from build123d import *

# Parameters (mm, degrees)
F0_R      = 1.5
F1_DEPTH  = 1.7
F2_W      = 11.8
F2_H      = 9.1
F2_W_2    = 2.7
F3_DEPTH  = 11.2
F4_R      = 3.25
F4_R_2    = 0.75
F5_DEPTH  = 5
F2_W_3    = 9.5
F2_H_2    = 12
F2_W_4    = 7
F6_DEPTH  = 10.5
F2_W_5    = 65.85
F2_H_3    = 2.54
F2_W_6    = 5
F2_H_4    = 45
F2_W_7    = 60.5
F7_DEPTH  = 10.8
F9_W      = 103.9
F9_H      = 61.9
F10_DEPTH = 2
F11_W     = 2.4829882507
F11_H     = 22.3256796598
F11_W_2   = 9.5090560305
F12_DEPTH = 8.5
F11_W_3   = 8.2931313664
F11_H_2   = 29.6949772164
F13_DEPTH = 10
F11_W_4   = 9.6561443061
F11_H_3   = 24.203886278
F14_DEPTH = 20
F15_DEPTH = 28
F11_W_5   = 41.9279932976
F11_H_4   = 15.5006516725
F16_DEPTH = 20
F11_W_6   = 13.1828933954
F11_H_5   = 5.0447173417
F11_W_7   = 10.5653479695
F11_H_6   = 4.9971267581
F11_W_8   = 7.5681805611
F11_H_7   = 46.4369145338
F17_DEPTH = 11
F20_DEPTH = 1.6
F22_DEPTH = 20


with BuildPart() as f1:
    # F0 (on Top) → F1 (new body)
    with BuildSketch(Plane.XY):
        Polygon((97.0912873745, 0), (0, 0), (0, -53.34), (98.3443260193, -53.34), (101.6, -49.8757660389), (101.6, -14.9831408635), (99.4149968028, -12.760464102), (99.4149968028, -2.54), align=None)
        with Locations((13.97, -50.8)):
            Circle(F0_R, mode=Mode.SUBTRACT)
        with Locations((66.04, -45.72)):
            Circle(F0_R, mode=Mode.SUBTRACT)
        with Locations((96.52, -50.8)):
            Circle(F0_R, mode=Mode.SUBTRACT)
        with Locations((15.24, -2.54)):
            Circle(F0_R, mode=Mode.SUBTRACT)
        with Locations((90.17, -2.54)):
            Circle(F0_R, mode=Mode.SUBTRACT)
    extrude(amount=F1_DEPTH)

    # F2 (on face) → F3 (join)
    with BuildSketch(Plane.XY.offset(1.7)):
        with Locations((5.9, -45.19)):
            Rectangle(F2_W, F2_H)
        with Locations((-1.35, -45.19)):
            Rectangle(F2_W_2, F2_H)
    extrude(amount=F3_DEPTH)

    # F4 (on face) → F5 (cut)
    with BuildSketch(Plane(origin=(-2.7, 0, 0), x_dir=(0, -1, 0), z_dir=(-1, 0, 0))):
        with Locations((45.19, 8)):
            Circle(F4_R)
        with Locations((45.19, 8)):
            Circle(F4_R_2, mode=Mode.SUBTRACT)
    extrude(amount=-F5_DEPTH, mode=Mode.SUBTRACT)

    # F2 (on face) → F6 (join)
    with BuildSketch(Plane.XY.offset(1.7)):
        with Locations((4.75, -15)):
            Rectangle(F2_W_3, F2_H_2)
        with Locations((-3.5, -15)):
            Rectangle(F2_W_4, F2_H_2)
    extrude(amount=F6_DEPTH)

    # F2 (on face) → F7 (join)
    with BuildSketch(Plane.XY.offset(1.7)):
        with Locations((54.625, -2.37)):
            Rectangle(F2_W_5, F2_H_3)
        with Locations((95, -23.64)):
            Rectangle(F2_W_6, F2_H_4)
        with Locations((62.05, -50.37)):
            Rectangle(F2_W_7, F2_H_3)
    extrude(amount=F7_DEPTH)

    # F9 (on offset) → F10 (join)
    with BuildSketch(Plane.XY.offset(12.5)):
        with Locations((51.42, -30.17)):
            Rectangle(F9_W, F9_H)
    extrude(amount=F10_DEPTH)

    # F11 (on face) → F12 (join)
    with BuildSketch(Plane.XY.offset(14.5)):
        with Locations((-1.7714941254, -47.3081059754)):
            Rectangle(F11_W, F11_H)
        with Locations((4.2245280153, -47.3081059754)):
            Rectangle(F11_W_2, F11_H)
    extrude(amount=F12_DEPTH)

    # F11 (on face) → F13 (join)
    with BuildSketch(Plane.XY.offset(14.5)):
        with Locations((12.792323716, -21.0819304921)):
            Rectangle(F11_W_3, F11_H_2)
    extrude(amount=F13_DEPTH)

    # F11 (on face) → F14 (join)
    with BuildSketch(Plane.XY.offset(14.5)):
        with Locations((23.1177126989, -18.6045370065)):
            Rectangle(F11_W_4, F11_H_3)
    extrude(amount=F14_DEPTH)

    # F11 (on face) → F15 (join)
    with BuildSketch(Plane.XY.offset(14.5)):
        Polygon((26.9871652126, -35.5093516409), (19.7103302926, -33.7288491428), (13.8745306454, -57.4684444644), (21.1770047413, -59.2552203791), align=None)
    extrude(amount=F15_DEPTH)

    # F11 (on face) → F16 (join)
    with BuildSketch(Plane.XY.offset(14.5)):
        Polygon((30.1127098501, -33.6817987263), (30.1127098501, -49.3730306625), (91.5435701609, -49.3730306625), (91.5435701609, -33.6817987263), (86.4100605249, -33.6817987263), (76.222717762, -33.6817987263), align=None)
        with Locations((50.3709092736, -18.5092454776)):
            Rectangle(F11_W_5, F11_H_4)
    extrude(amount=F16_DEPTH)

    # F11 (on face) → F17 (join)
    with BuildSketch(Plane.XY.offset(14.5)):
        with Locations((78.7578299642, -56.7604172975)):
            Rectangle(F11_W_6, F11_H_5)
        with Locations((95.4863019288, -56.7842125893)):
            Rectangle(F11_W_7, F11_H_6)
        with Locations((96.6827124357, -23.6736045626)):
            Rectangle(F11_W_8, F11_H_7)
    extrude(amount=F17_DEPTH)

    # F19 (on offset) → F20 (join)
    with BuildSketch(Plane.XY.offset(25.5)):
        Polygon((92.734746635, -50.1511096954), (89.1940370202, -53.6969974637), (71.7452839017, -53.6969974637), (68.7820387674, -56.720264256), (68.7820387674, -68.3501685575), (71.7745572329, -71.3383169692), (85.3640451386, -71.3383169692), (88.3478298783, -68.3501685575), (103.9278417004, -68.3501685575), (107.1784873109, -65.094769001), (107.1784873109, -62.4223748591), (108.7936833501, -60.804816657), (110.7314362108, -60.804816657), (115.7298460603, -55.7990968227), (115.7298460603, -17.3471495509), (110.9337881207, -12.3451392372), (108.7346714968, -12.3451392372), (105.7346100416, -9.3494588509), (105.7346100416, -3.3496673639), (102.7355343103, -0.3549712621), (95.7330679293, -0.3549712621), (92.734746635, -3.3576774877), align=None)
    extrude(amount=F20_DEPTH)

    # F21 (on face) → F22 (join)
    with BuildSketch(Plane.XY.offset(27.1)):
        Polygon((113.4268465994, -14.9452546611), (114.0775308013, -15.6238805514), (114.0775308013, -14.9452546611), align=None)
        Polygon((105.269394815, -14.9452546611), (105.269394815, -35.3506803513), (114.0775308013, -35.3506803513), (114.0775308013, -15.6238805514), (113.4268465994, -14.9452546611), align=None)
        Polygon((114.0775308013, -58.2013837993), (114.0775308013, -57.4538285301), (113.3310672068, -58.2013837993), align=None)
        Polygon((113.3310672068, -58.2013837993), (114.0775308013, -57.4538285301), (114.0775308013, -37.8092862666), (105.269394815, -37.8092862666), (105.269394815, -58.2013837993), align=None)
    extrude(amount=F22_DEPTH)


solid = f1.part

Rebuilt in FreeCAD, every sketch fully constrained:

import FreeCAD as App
import Part
import Sketcher

V = App.Vector
Q = App.Units.Quantity

doc = App.newDocument("Part")
params = doc.addObject("Spreadsheet::Sheet", "Params")
for row, (alias, value) in enumerate([
    ("sketch1_diameter", "3 mm"),
    ("sketch1_height", "53.34 mm"),
    ("pad1_length", "1.7 mm"),
    ("sketch2_width", "14.5 mm"),
    ("sketch2_height", "9.1 mm"),
    ("pad2_length", "11.2 mm"),
    ("sketch3_diameter", "6.5 mm"),
    ("sketch3_diameter2", "1.5 mm"),
    ("pocket1_length", "5 mm"),
    ("sketch4_height", "12 mm"),
    ("sketch4_width", "16.5 mm"),
    ("pad3_length", "10.5 mm"),
    ("sketch5_width", "5 mm"),
    ("sketch5_height", "45 mm"),
    ("sketch5_width2", "60.5 mm"),
    ("sketch5_width3", "65.85 mm"),
    ("sketch5_height2", "2.54 mm"),
    ("pad4_length", "10.8 mm"),
    ("sketch6_width", "103.9 mm"),
    ("sketch6_height", "61.9 mm"),
    ("pad5_length", "2 mm"),
    ("pad6_length", "8.5 mm"),
    ("pad7_length", "10 mm"),
    ("pad8_length", "20 mm"),
    ("pad9_length", "28 mm"),
    ("pad10_length", "20 mm"),
    ("pad11_length", "11 mm"),
    ("pad12_length", "1.6 mm"),
    ("pad13_length", "20 mm"),
], start=1):
    params.set(f"A{row}", alias)
    params.set(f"B{row}", "=" + value)
    params.setAlias(f"B{row}", alias)

body = doc.addObject("PartDesign::Body", "Body")

# Sketch on XY plane
sketch1 = body.newObject("Sketcher::SketchObject", "Sketch")
sketch1.AttachmentSupport = (doc.getObject("XY_Plane"), [""])
sketch1.MapMode = "FlatFace"
sketch1.addGeometry([
    Part.LineSegment(V(97.1, 0, 0), V(0, 0, 0)),  # 0
    Part.LineSegment(V(0, 0, 0), V(0, -53.3, 0)),  # 1
    Part.LineSegment(V(0, -53.3, 0), V(98.3, -53.3, 0)),  # 2
    Part.LineSegment(V(98.3, -53.3, 0), V(101.6, -49.9, 0)),  # 3
    Part.LineSegment(V(101.6, -49.9, 0), V(101.6, -15, 0)),  # 4
    Part.LineSegment(V(101.6, -15, 0), V(99.4, -12.8, 0)),  # 5
    Part.LineSegment(V(99.4, -12.8, 0), V(99.4, -2.5, 0)),  # 6
    Part.LineSegment(V(99.4, -2.5, 0), V(97.1, 0, 0)),  # 7
    Part.Circle(V(14, -50.8, 0), V(0, 0, 1), 1.5),  # 8
    Part.Circle(V(66, -45.7, 0), V(0, 0, 1), 1.5),  # 9
    Part.Circle(V(96.5, -50.8, 0), V(0, 0, 1), 1.5),  # 10
    Part.Circle(V(15.2, -2.5, 0), V(0, 0, 1), 1.5),  # 11
    Part.Circle(V(90.2, -2.5, 0), V(0, 0, 1), 1.5),  # 12
], False)
sketch1.addConstraint([
    Sketcher.Constraint("Coincident", 0, 2, 1, 1),
    Sketcher.Constraint("Coincident", 1, 2, 2, 1),
    Sketcher.Constraint("Coincident", 2, 2, 3, 1),
    Sketcher.Constraint("Coincident", 3, 2, 4, 1),
    Sketcher.Constraint("Coincident", 4, 2, 5, 1),
    Sketcher.Constraint("Coincident", 5, 2, 6, 1),
    Sketcher.Constraint("Coincident", 6, 2, 7, 1),
    Sketcher.Constraint("Coincident", 7, 2, 0, 1),
    Sketcher.Constraint("Horizontal", 0),
    Sketcher.Constraint("Vertical", 1),
    Sketcher.Constraint("Horizontal", 2),
    Sketcher.Constraint("Vertical", 4),
    Sketcher.Constraint("Vertical", 6),
    Sketcher.Constraint("Coincident", 0, 2, -1, 1),
    Sketcher.Constraint("Equal", 8, 9),
    Sketcher.Constraint("Equal", 9, 10),
    Sketcher.Constraint("Equal", 10, 11),
    Sketcher.Constraint("Equal", 11, 12),
    Sketcher.Constraint("Horizontal", 8, 3, 10, 3),
    Sketcher.Constraint("Horizontal", 11, 3, 12, 3),
    Sketcher.Constraint("Horizontal", 12, 3, 6, 2),
    Sketcher.Constraint("Diameter", 8, Q("3 mm")),
    Sketcher.Constraint("DistanceY", 1, 2, 1, 1, Q("53.34 mm")),
    Sketcher.Constraint("DistanceY", 8, 3, -1, 1, Q("50.8 mm")),
    Sketcher.Constraint("DistanceX", -1, 1, 3, 2, Q("101.6 mm")),
    Sketcher.Constraint("DistanceX", 11, 3, 9, 3, Q("50.8 mm")),
    Sketcher.Constraint("DistanceX", 8, 3, 12, 3, Q("76.2 mm")),
    Sketcher.Constraint("DistanceY", 1, 2, 11, 3, Q("50.8 mm")),
    Sketcher.Constraint("DistanceX", -1, 1, 8, 3, Q("13.97 mm")),
    Sketcher.Constraint("DistanceX", -1, 1, 9, 3, Q("66.04 mm")),
    Sketcher.Constraint("DistanceY", 9, 3, -1, 1, Q("45.72 mm")),
    Sketcher.Constraint("DistanceX", -1, 1, 10, 3, Q("96.52 mm")),
    Sketcher.Constraint("DistanceY", 3, 2, 5, 2, Q("37.115302 mm")),
    Sketcher.Constraint("Distance", 3, Q("4.75398 mm")),
    Sketcher.Constraint("Distance", 7, Q("3.442561 mm")),
    Sketcher.Constraint("DistanceX", 0, 2, 0, 1, Q("97.091287 mm")),
    Sketcher.Constraint("DistanceX", 2, 1, 2, 2, Q("98.344326 mm")),
    Sketcher.Constraint("DistanceY", 4, 1, 4, 2, Q("34.892625 mm")),
])
sketch1.setExpression("Constraints[21]", "Params.sketch1_diameter")
sketch1.setExpression("Constraints[22]", "Params.sketch1_height")
pad1 = body.newObject("PartDesign::Pad", "Pad")
pad1.Profile = sketch1
pad1.setExpression("Length", "Params.pad1_length")

# Sketch on XY plane
sketch2 = body.newObject("Sketcher::SketchObject", "Sketch001")
sketch2.AttachmentSupport = (doc.getObject("XY_Plane"), [""])
sketch2.MapMode = "FlatFace"
sketch2.AttachmentOffset = App.Placement(V(0, 0, 1.7), App.Rotation())
sketch2.addGeometry([
    Part.LineSegment(V(12, -50, 0), V(12, -41, 0)),
    Part.LineSegment(V(12, -41, 0), V(-3, -41, 0)),
    Part.LineSegment(V(-3, -41, 0), V(-3, -50, 0)),
    Part.LineSegment(V(-3, -50, 0), V(12, -50, 0)),
], False)
sketch2.addConstraint([
    Sketcher.Constraint("Coincident", 0, 2, 1, 1),
    Sketcher.Constraint("Coincident", 1, 2, 2, 1),
    Sketcher.Constraint("Coincident", 2, 2, 3, 1),
    Sketcher.Constraint("Coincident", 3, 2, 0, 1),
    Sketcher.Constraint("Vertical", 0),
    Sketcher.Constraint("Horizontal", 1),
    Sketcher.Constraint("Vertical", 2),
    Sketcher.Constraint("Horizontal", 3),
    Sketcher.Constraint("DistanceX", 1, 2, 1, 1, Q("14.5 mm")),
    Sketcher.Constraint("DistanceY", 0, 1, 0, 2, Q("9.1 mm")),
    Sketcher.Constraint("DistanceX", -1, 1, 0, 2, Q("11.8 mm")),
    Sketcher.Constraint("DistanceY", 0, 2, -1, 1, Q("40.64 mm")),
])
sketch2.setExpression("Constraints[8]", "Params.sketch2_width")
sketch2.setExpression("Constraints[9]", "Params.sketch2_height")
pad2 = body.newObject("PartDesign::Pad", "Pad001")
pad2.Profile = sketch2
pad2.setExpression("Length", "Params.pad2_length")

# Sketch on YZ plane
sketch3 = body.newObject("Sketcher::SketchObject", "Sketch002")
sketch3.AttachmentSupport = (doc.getObject("YZ_Plane"), [""])
sketch3.MapMode = "FlatFace"
sketch3.AttachmentOffset = App.Placement(V(0, 0, -2.7), App.Rotation())
sketch3.addGeometry([
    Part.Circle(V(-45.2, 8, 0), V(0, 0, 1), 3.2),
    Part.Circle(V(-45.2, 8, 0), V(0, 0, 1), 0.8),
], False)
sketch3.addConstraint([
    Sketcher.Constraint("Coincident", 1, 3, 0, 3),
    Sketcher.Constraint("Diameter", 0, Q("6.5 mm")),
    Sketcher.Constraint("Diameter", 1, Q("1.5 mm")),
    Sketcher.Constraint("DistanceY", -1, 1, 0, 3, Q("8 mm")),
    Sketcher.Constraint("DistanceX", 0, 3, -1, 1, Q("45.19 mm")),
])
sketch3.setExpression("Constraints[1]", "Params.sketch3_diameter")
sketch3.setExpression("Constraints[2]", "Params.sketch3_diameter2")
pocket1 = body.newObject("PartDesign::Pocket", "Pocket")
pocket1.Profile = sketch3
pocket1.setExpression("Length", "Params.pocket1_length")
pocket1.Reversed = True

# Sketch on XY plane
sketch4 = body.newObject("Sketcher::SketchObject", "Sketch003")
sketch4.AttachmentSupport = (doc.getObject("XY_Plane"), [""])
sketch4.MapMode = "FlatFace"
sketch4.AttachmentOffset = App.Placement(V(0, 0, 1.7), App.Rotation())
sketch4.addGeometry([
    Part.LineSegment(V(10, -21, 0), V(10, -9, 0)),
    Part.LineSegment(V(10, -9, 0), V(-7, -9, 0)),
    Part.LineSegment(V(-7, -9, 0), V(-7, -21, 0)),
    Part.LineSegment(V(-7, -21, 0), V(10, -21, 0)),
], False)
sketch4.addConstraint([
    Sketcher.Constraint("Coincident", 0, 2, 1, 1),
    Sketcher.Constraint("Coincident", 1, 2, 2, 1),
    Sketcher.Constraint("Coincident", 2, 2, 3, 1),
    Sketcher.Constraint("Coincident", 3, 2, 0, 1),
    Sketcher.Constraint("Vertical", 0),
    Sketcher.Constraint("Horizontal", 1),
    Sketcher.Constraint("Vertical", 2),
    Sketcher.Constraint("Horizontal", 3),
    Sketcher.Constraint("DistanceY", 0, 1, 0, 2, Q("12 mm")),
    Sketcher.Constraint("DistanceX", 1, 2, 1, 1, Q("16.5 mm")),
    Sketcher.Constraint("DistanceY", 0, 2, -1, 1, Q("9 mm")),
    Sketcher.Constraint("DistanceX", 1, 2, -1, 1, Q("7 mm")),
])
sketch4.setExpression("Constraints[8]", "Params.sketch4_height")
sketch4.setExpression("Constraints[9]", "Params.sketch4_width")
pad3 = body.newObject("PartDesign::Pad", "Pad002")
pad3.Profile = sketch4
pad3.setExpression("Length", "Params.pad3_length")

# Sketch on XY plane
sketch5 = body.newObject("Sketcher::SketchObject", "Sketch004")
sketch5.AttachmentSupport = (doc.getObject("XY_Plane"), [""])
sketch5.MapMode = "FlatFace"
sketch5.AttachmentOffset = App.Placement(V(0, 0, 1.7), App.Rotation())
sketch5.addGeometry([
    Part.LineSegment(V(21.7, -1.1, 0), V(21.7, -3.6, 0)),  # 0
    Part.LineSegment(V(21.7, -3.6, 0), V(87.5, -3.6, 0)),  # 1
    Part.LineSegment(V(87.5, -3.6, 0), V(87.5, -1.1, 0)),  # 2
    Part.LineSegment(V(87.5, -1.1, 0), V(21.7, -1.1, 0)),  # 3
    Part.LineSegment(V(92.5, -1.1, 0), V(92.5, -46.1, 0)),  # 4
    Part.LineSegment(V(92.5, -46.1, 0), V(97.5, -46.1, 0)),  # 5
    Part.LineSegment(V(97.5, -46.1, 0), V(97.5, -1.1, 0)),  # 6
    Part.LineSegment(V(97.5, -1.1, 0), V(92.5, -1.1, 0)),  # 7
    Part.LineSegment(V(31.8, -49.1, 0), V(31.8, -51.6, 0)),  # 8
    Part.LineSegment(V(31.8, -51.6, 0), V(92.3, -51.6, 0)),  # 9
    Part.LineSegment(V(92.3, -51.6, 0), V(92.3, -49.1, 0)),  # 10
    Part.LineSegment(V(92.3, -49.1, 0), V(31.8, -49.1, 0)),  # 11
], False)
sketch5.addConstraint([
    Sketcher.Constraint("Coincident", 0, 2, 1, 1),
    Sketcher.Constraint("Coincident", 1, 2, 2, 1),
    Sketcher.Constraint("Coincident", 2, 2, 3, 1),
    Sketcher.Constraint("Coincident", 3, 2, 0, 1),
    Sketcher.Constraint("Coincident", 4, 2, 5, 1),
    Sketcher.Constraint("Coincident", 5, 2, 6, 1),
    Sketcher.Constraint("Coincident", 6, 2, 7, 1),
    Sketcher.Constraint("Coincident", 7, 2, 4, 1),
    Sketcher.Constraint("Coincident", 8, 2, 9, 1),
    Sketcher.Constraint("Coincident", 9, 2, 10, 1),
    Sketcher.Constraint("Coincident", 10, 2, 11, 1),
    Sketcher.Constraint("Coincident", 11, 2, 8, 1),
    Sketcher.Constraint("Vertical", 0),
    Sketcher.Constraint("Horizontal", 1),
    Sketcher.Constraint("Vertical", 2),
    Sketcher.Constraint("Horizontal", 3),
    Sketcher.Constraint("Vertical", 4),
    Sketcher.Constraint("Horizontal", 5),
    Sketcher.Constraint("Vertical", 6),
    Sketcher.Constraint("Horizontal", 7),
    Sketcher.Constraint("Vertical", 8),
    Sketcher.Constraint("Horizontal", 9),
    Sketcher.Constraint("Vertical", 10),
    Sketcher.Constraint("Horizontal", 11),
    Sketcher.Constraint("Equal", 2, 8),
    Sketcher.Constraint("DistanceX", 5, 1, 5, 2, Q("5 mm")),
    Sketcher.Constraint("DistanceY", 4, 2, 4, 1, Q("45 mm")),
    Sketcher.Constraint("DistanceX", 9, 1, 9, 2, Q("60.5 mm")),
    Sketcher.Constraint("DistanceY", 8, 2, 0, 2, Q("48 mm")),
    Sketcher.Constraint("DistanceX", 1, 1, 1, 2, Q("65.85 mm")),
    Sketcher.Constraint("DistanceY", 0, 2, 0, 1, Q("2.54 mm")),
    Sketcher.Constraint("DistanceX", -1, 1, 0, 2, Q("21.7 mm")),
    Sketcher.Constraint("DistanceY", 2, 2, -1, 1, Q("1.1 mm")),
    Sketcher.Constraint("DistanceX", -1, 1, 4, 2, Q("92.5 mm")),
    Sketcher.Constraint("DistanceX", -1, 1, 8, 2, Q("31.8 mm")),
    Sketcher.Constraint("DistanceY", 4, 2, 1, 2, Q("42.5 mm")),
])
sketch5.setExpression("Constraints[25]", "Params.sketch5_width")
sketch5.setExpression("Constraints[26]", "Params.sketch5_height")
sketch5.setExpression("Constraints[27]", "Params.sketch5_width2")
sketch5.setExpression("Constraints[29]", "Params.sketch5_width3")
sketch5.setExpression("Constraints[30]", "Params.sketch5_height2")
pad4 = body.newObject("PartDesign::Pad", "Pad003")
pad4.Profile = sketch5
pad4.setExpression("Length", "Params.pad4_length")

# Sketch on XY plane
sketch6 = body.newObject("Sketcher::SketchObject", "Sketch005")
sketch6.AttachmentSupport = (doc.getObject("XY_Plane"), [""])
sketch6.MapMode = "FlatFace"
sketch6.AttachmentOffset = App.Placement(V(0, 0, 12.5), App.Rotation())
sketch6.addGeometry([
    Part.LineSegment(V(-1, 1, 0), V(-1, -61, 0)),
    Part.LineSegment(V(-1, -61, 0), V(103, -61, 0)),
    Part.LineSegment(V(103, -61, 0), V(103, 1, 0)),
    Part.LineSegment(V(103, 1, 0), V(-1, 1, 0)),
], False)
sketch6.addConstraint([
    Sketcher.Constraint("Coincident", 0, 2, 1, 1),
    Sketcher.Constraint("Coincident", 1, 2, 2, 1),
    Sketcher.Constraint("Coincident", 2, 2, 3, 1),
    Sketcher.Constraint("Coincident", 3, 2, 0, 1),
    Sketcher.Constraint("Vertical", 0),
    Sketcher.Constraint("Horizontal", 1),
    Sketcher.Constraint("Vertical", 2),
    Sketcher.Constraint("Horizontal", 3),
    Sketcher.Constraint("DistanceX", 1, 1, 1, 2, Q("103.9 mm")),
    Sketcher.Constraint("DistanceY", 0, 2, 0, 1, Q("61.9 mm")),
    Sketcher.Constraint("DistanceX", 0, 2, -1, 1, Q("0.53 mm")),
    Sketcher.Constraint("DistanceY", 0, 2, -1, 1, Q("61.12 mm")),
])
sketch6.setExpression("Constraints[8]", "Params.sketch6_width")
sketch6.setExpression("Constraints[9]", "Params.sketch6_height")
pad5 = body.newObject("PartDesign::Pad", "Pad004")
pad5.Profile = sketch6
pad5.setExpression("Length", "Params.pad5_length")

# Sketch on XY plane
sketch7 = body.newObject("Sketcher::SketchObject", "Sketch006")
sketch7.AttachmentSupport = (doc.getObject("XY_Plane"), [""])
sketch7.MapMode = "FlatFace"
sketch7.AttachmentOffset = App.Placement(V(0, 0, 14.5), App.Rotation())
sketch7.addGeometry([
    Part.LineSegment(V(-3, -36, 0), V(-3, -58, 0)),
    Part.LineSegment(V(-3, -58, 0), V(9, -58, 0)),
    Part.LineSegment(V(9, -58, 0), V(9, -36, 0)),
    Part.LineSegment(V(9, -36, 0), V(-3, -36, 0)),
], False)
sketch7.addConstraint([
    Sketcher.Constraint("Coincident", 0, 2, 1, 1),
    Sketcher.Constraint("Coincident", 1, 2, 2, 1),
    Sketcher.Constraint("Coincident", 2, 2, 3, 1),
    Sketcher.Constraint("Coincident", 3, 2, 0, 1),
    Sketcher.Constraint("Vertical", 0),
    Sketcher.Constraint("Horizontal", 1),
    Sketcher.Constraint("Vertical", 2),
    Sketcher.Constraint("Horizontal", 3),
    Sketcher.Constraint("DistanceY", 0, 2, 0, 1, Q("22.32568 mm")),
    Sketcher.Constraint("DistanceX", 1, 1, 1, 2, Q("11.992044 mm")),
    Sketcher.Constraint("DistanceX", 0, 2, -1, 1, Q("3.012988 mm")),
    Sketcher.Constraint("DistanceY", 0, 2, -1, 1, Q("58.470946 mm")),
])
pad6 = body.newObject("PartDesign::Pad", "Pad005")
pad6.Profile = sketch7
pad6.setExpression("Length", "Params.pad6_length")

# Sketch on XY plane
sketch8 = body.newObject("Sketcher::SketchObject", "Sketch007")
sketch8.AttachmentSupport = (doc.getObject("XY_Plane"), [""])
sketch8.MapMode = "FlatFace"
sketch8.AttachmentOffset = App.Placement(V(0, 0, 14.5), App.Rotation())
sketch8.addGeometry([
    Part.LineSegment(V(9, -6, 0), V(9, -36, 0)),
    Part.LineSegment(V(9, -36, 0), V(17, -36, 0)),
    Part.LineSegment(V(17, -36, 0), V(17, -6, 0)),
    Part.LineSegment(V(17, -6, 0), V(9, -6, 0)),
], False)
sketch8.addConstraint([
    Sketcher.Constraint("Coincident", 0, 2, 1, 1),
    Sketcher.Constraint("Coincident", 1, 2, 2, 1),
    Sketcher.Constraint("Coincident", 2, 2, 3, 1),
    Sketcher.Constraint("Coincident", 3, 2, 0, 1),
    Sketcher.Constraint("Vertical", 0),
    Sketcher.Constraint("Horizontal", 1),
    Sketcher.Constraint("Vertical", 2),
    Sketcher.Constraint("Horizontal", 3),
    Sketcher.Constraint("DistanceX", 1, 1, 1, 2, Q("8.293131 mm")),
    Sketcher.Constraint("DistanceY", 0, 2, 0, 1, Q("29.694977 mm")),
    Sketcher.Constraint("DistanceX", -1, 1, 0, 2, Q("8.645758 mm")),
    Sketcher.Constraint("DistanceY", 0, 2, -1, 1, Q("35.929419 mm")),
])
pad7 = body.newObject("PartDesign::Pad", "Pad006")
pad7.Profile = sketch8
pad7.setExpression("Length", "Params.pad7_length")

# Sketch on XY plane
sketch9 = body.newObject("Sketcher::SketchObject", "Sketch008")
sketch9.AttachmentSupport = (doc.getObject("XY_Plane"), [""])
sketch9.MapMode = "FlatFace"
sketch9.AttachmentOffset = App.Placement(V(0, 0, 14.5), App.Rotation())
sketch9.addGeometry([
    Part.LineSegment(V(18, -7, 0), V(18, -31, 0)),
    Part.LineSegment(V(18, -31, 0), V(28, -31, 0)),
    Part.LineSegment(V(28, -31, 0), V(28, -7, 0)),
    Part.LineSegment(V(28, -7, 0), V(18, -7, 0)),
], False)
sketch9.addConstraint([
    Sketcher.Constraint("Coincident", 0, 2, 1, 1),
    Sketcher.Constraint("Coincident", 1, 2, 2, 1),
    Sketcher.Constraint("Coincident", 2, 2, 3, 1),
    Sketcher.Constraint("Coincident", 3, 2, 0, 1),
    Sketcher.Constraint("Vertical", 0),
    Sketcher.Constraint("Horizontal", 1),
    Sketcher.Constraint("Vertical", 2),
    Sketcher.Constraint("Horizontal", 3),
    Sketcher.Constraint("DistanceX", 1, 1, 1, 2, Q("9.656144 mm")),
    Sketcher.Constraint("DistanceY", 0, 2, 0, 1, Q("24.203886 mm")),
    Sketcher.Constraint("DistanceX", -1, 1, 0, 2, Q("18.289641 mm")),
    Sketcher.Constraint("DistanceY", 0, 2, -1, 1, Q("30.70648 mm")),
])
pad8 = body.newObject("PartDesign::Pad", "Pad007")
pad8.Profile = sketch9
pad8.setExpression("Length", "Params.pad8_length")

# Sketch on XY plane
sketch10 = body.newObject("Sketcher::SketchObject", "Sketch009")
sketch10.AttachmentSupport = (doc.getObject("XY_Plane"), [""])
sketch10.MapMode = "FlatFace"
sketch10.AttachmentOffset = App.Placement(V(0, 0, 14.5), App.Rotation())
sketch10.addGeometry([
    Part.LineSegment(V(27, -36, 0), V(20, -34, 0)),
    Part.LineSegment(V(20, -34, 0), V(14, -57, 0)),
    Part.LineSegment(V(14, -57, 0), V(21, -59, 0)),
    Part.LineSegment(V(21, -59, 0), V(27, -36, 0)),
], False)
sketch10.addConstraint([
    Sketcher.Constraint("Coincident", 0, 2, 1, 1),
    Sketcher.Constraint("Coincident", 1, 2, 2, 1),
    Sketcher.Constraint("Coincident", 2, 2, 3, 1),
    Sketcher.Constraint("Coincident", 3, 2, 0, 1),
    Sketcher.Constraint("Parallel", 0, 2),
    Sketcher.Constraint("Perpendicular", 2, 3),
    Sketcher.Constraint("DistanceX", 1, 2, 0, 2, Q("5.8358 mm")),
    Sketcher.Constraint("Distance", 1, Q("24.446369 mm")),
    Sketcher.Constraint("Distance", 2, Q("7.517892 mm")),
    Sketcher.Constraint("DistanceX", -1, 1, 0, 2, Q("19.71033 mm")),
    Sketcher.Constraint("DistanceY", 0, 2, -1, 1, Q("33.728849 mm")),
    Sketcher.Constraint("DistanceY", 2, 2, -1, 1, Q("59.25522 mm")),
])
pad9 = body.newObject("PartDesign::Pad", "Pad008")
pad9.Profile = sketch10
pad9.setExpression("Length", "Params.pad9_length")

# Sketch on XY plane
sketch11 = body.newObject("Sketcher::SketchObject", "Sketch010")
sketch11.AttachmentSupport = (doc.getObject("XY_Plane"), [""])
sketch11.MapMode = "FlatFace"
sketch11.AttachmentOffset = App.Placement(V(0, 0, 14.5), App.Rotation())
sketch11.addGeometry([
    Part.LineSegment(V(30, -34, 0), V(30, -49, 0)),  # 0
    Part.LineSegment(V(30, -49, 0), V(92, -49, 0)),  # 1
    Part.LineSegment(V(92, -49, 0), V(92, -34, 0)),  # 2
    Part.LineSegment(V(92, -34, 0), V(30, -34, 0)),  # 3
    Part.LineSegment(V(29, -11, 0), V(29, -26, 0)),  # 4
    Part.LineSegment(V(29, -26, 0), V(71, -26, 0)),  # 5
    Part.LineSegment(V(71, -26, 0), V(71, -11, 0)),  # 6
    Part.LineSegment(V(71, -11, 0), V(29, -11, 0)),  # 7
], False)
sketch11.addConstraint([
    Sketcher.Constraint("Coincident", 0, 2, 1, 1),
    Sketcher.Constraint("Coincident", 1, 2, 2, 1),
    Sketcher.Constraint("Coincident", 2, 2, 3, 1),
    Sketcher.Constraint("Coincident", 3, 2, 0, 1),
    Sketcher.Constraint("Coincident", 4, 2, 5, 1),
    Sketcher.Constraint("Coincident", 5, 2, 6, 1),
    Sketcher.Constraint("Coincident", 6, 2, 7, 1),
    Sketcher.Constraint("Coincident", 7, 2, 4, 1),
    Sketcher.Constraint("Vertical", 0),
    Sketcher.Constraint("Horizontal", 1),
    Sketcher.Constraint("Vertical", 2),
    Sketcher.Constraint("Horizontal", 3),
    Sketcher.Constraint("Vertical", 4),
    Sketcher.Constraint("Horizontal", 5),
    Sketcher.Constraint("Vertical", 6),
    Sketcher.Constraint("Horizontal", 7),
    Sketcher.Constraint("DistanceX", 1, 1, 1, 2, Q("61.43086 mm")),
    Sketcher.Constraint("DistanceY", 0, 2, 0, 1, Q("15.691232 mm")),
    Sketcher.Constraint("DistanceY", 4, 2, 4, 1, Q("15.500652 mm")),
    Sketcher.Constraint("DistanceY", 2, 2, -1, 1, Q("33.681799 mm")),
    Sketcher.Constraint("DistanceX", 5, 1, 5, 2, Q("41.927993 mm")),
    Sketcher.Constraint("DistanceX", -1, 1, 0, 2, Q("30.11271 mm")),
    Sketcher.Constraint("DistanceY", 4, 2, -1, 1, Q("26.259571 mm")),
    Sketcher.Constraint("DistanceX", -1, 1, 4, 2, Q("29.406913 mm")),
])
pad10 = body.newObject("PartDesign::Pad", "Pad009")
pad10.Profile = sketch11
pad10.setExpression("Length", "Params.pad10_length")

# Sketch on XY plane
sketch12 = body.newObject("Sketcher::SketchObject", "Sketch011")
sketch12.AttachmentSupport = (doc.getObject("XY_Plane"), [""])
sketch12.MapMode = "FlatFace"
sketch12.AttachmentOffset = App.Placement(V(0, 0, 14.5), App.Rotation())
sketch12.addGeometry([
    Part.LineSegment(V(72.2, -54.2, 0), V(72.2, -59.3, 0)),  # 0
    Part.LineSegment(V(72.2, -59.3, 0), V(85.3, -59.3, 0)),  # 1
    Part.LineSegment(V(85.3, -59.3, 0), V(85.3, -54.2, 0)),  # 2
    Part.LineSegment(V(85.3, -54.2, 0), V(72.2, -54.2, 0)),  # 3
    Part.LineSegment(V(90.2, -54.3, 0), V(90.2, -59.3, 0)),  # 4
    Part.LineSegment(V(90.2, -59.3, 0), V(100.8, -59.3, 0)),  # 5
    Part.LineSegment(V(100.8, -59.3, 0), V(100.8, -54.3, 0)),  # 6
    Part.LineSegment(V(100.8, -54.3, 0), V(90.2, -54.3, 0)),  # 7
    Part.LineSegment(V(92.9, -0.5, 0), V(92.9, -46.9, 0)),  # 8
    Part.LineSegment(V(92.9, -46.9, 0), V(100.5, -46.9, 0)),  # 9
    Part.LineSegment(V(100.5, -46.9, 0), V(100.5, -0.5, 0)),  # 10
    Part.LineSegment(V(100.5, -0.5, 0), V(92.9, -0.5, 0)),  # 11
], False)
sketch12.addConstraint([
    Sketcher.Constraint("Coincident", 0, 2, 1, 1),
    Sketcher.Constraint("Coincident", 1, 2, 2, 1),
    Sketcher.Constraint("Coincident", 2, 2, 3, 1),
    Sketcher.Constraint("Coincident", 3, 2, 0, 1),
    Sketcher.Constraint("Coincident", 4, 2, 5, 1),
    Sketcher.Constraint("Coincident", 5, 2, 6, 1),
    Sketcher.Constraint("Coincident", 6, 2, 7, 1),
    Sketcher.Constraint("Coincident", 7, 2, 4, 1),
    Sketcher.Constraint("Coincident", 8, 2, 9, 1),
    Sketcher.Constraint("Coincident", 9, 2, 10, 1),
    Sketcher.Constraint("Coincident", 10, 2, 11, 1),
    Sketcher.Constraint("Coincident", 11, 2, 8, 1),
    Sketcher.Constraint("Vertical", 0),
    Sketcher.Constraint("Horizontal", 1),
    Sketcher.Constraint("Vertical", 2),
    Sketcher.Constraint("Horizontal", 3),
    Sketcher.Constraint("Vertical", 4),
    Sketcher.Constraint("Horizontal", 5),
    Sketcher.Constraint("Vertical", 6),
    Sketcher.Constraint("Horizontal", 7),
    Sketcher.Constraint("Vertical", 8),
    Sketcher.Constraint("Horizontal", 9),
    Sketcher.Constraint("Vertical", 10),
    Sketcher.Constraint("Horizontal", 11),
    Sketcher.Constraint("Horizontal", 1, 2, 4, 2),
    Sketcher.Constraint("DistanceX", 9, 1, 9, 2, Q("7.568181 mm")),
    Sketcher.Constraint("DistanceX", 1, 2, 5, 2, Q("15.419699 mm")),
    Sketcher.Constraint("DistanceY", 6, 2, 10, 2, Q("53.830502 mm")),
    Sketcher.Constraint("DistanceX", 1, 1, 1, 2, Q("13.182893 mm")),
    Sketcher.Constraint("DistanceX", 5, 1, 5, 2, Q("10.565348 mm")),
    Sketcher.Constraint("DistanceY", 0, 2, 0, 1, Q("5.044717 mm")),
    Sketcher.Constraint("DistanceY", 4, 2, 4, 1, Q("4.997127 mm")),
    Sketcher.Constraint("DistanceY", 8, 2, 8, 1, Q("46.436915 mm")),
    Sketcher.Constraint("DistanceY", 2, 2, -1, 1, Q("54.238059 mm")),
    Sketcher.Constraint("DistanceX", -1, 1, 0, 2, Q("72.166383 mm")),
    Sketcher.Constraint("DistanceX", -1, 1, 8, 2, Q("92.898622 mm")),
])
pad11 = body.newObject("PartDesign::Pad", "Pad010")
pad11.Profile = sketch12
pad11.setExpression("Length", "Params.pad11_length")

# Sketch on XY plane
sketch13 = body.newObject("Sketcher::SketchObject", "Sketch012")
sketch13.AttachmentSupport = (doc.getObject("XY_Plane"), [""])
sketch13.MapMode = "FlatFace"
sketch13.AttachmentOffset = App.Placement(V(0, 0, 25.5), App.Rotation())
sketch13.addGeometry([
    Part.LineSegment(V(92.7, -50.2, 0), V(89.2, -53.7, 0)),  # 0
    Part.LineSegment(V(89.2, -53.7, 0), V(71.7, -53.7, 0)),  # 1
    Part.LineSegment(V(71.7, -53.7, 0), V(68.8, -56.7, 0)),  # 2
    Part.LineSegment(V(68.8, -56.7, 0), V(68.8, -68.4, 0)),  # 3
    Part.LineSegment(V(68.8, -68.4, 0), V(71.8, -71.3, 0)),  # 4
    Part.LineSegment(V(71.8, -71.3, 0), V(85.4, -71.3, 0)),  # 5
    Part.LineSegment(V(85.4, -71.3, 0), V(88.3, -68.4, 0)),  # 6
    Part.LineSegment(V(88.3, -68.4, 0), V(103.9, -68.4, 0)),  # 7
    Part.LineSegment(V(103.9, -68.4, 0), V(107.2, -65.1, 0)),  # 8
    Part.LineSegment(V(107.2, -65.1, 0), V(107.2, -62.4, 0)),  # 9
    Part.LineSegment(V(107.2, -62.4, 0), V(108.8, -60.8, 0)),  # 10
    Part.LineSegment(V(108.8, -60.8, 0), V(110.7, -60.8, 0)),  # 11
    Part.LineSegment(V(110.7, -60.8, 0), V(115.7, -55.8, 0)),  # 12
    Part.LineSegment(V(115.7, -55.8, 0), V(115.7, -17.3, 0)),  # 13
    Part.LineSegment(V(115.7, -17.3, 0), V(110.9, -12.3, 0)),  # 14
    Part.LineSegment(V(110.9, -12.3, 0), V(108.7, -12.3, 0)),  # 15
    Part.LineSegment(V(108.7, -12.3, 0), V(105.7, -9.3, 0)),  # 16
    Part.LineSegment(V(105.7, -9.3, 0), V(105.7, -3.3, 0)),  # 17
    Part.LineSegment(V(105.7, -3.3, 0), V(102.7, -0.4, 0)),  # 18
    Part.LineSegment(V(102.7, -0.4, 0), V(95.7, -0.4, 0)),  # 19
    Part.LineSegment(V(95.7, -0.4, 0), V(92.7, -3.4, 0)),  # 20
    Part.LineSegment(V(92.7, -3.4, 0), V(92.7, -50.2, 0)),  # 21
], False)
sketch13.addConstraint([
    Sketcher.Constraint("Coincident", 0, 2, 1, 1),
    Sketcher.Constraint("Coincident", 1, 2, 2, 1),
    Sketcher.Constraint("Coincident", 2, 2, 3, 1),
    Sketcher.Constraint("Coincident", 3, 2, 4, 1),
    Sketcher.Constraint("Coincident", 4, 2, 5, 1),
    Sketcher.Constraint("Coincident", 5, 2, 6, 1),
    Sketcher.Constraint("Coincident", 6, 2, 7, 1),
    Sketcher.Constraint("Coincident", 7, 2, 8, 1),
    Sketcher.Constraint("Coincident", 8, 2, 9, 1),
    Sketcher.Constraint("Coincident", 9, 2, 10, 1),
    Sketcher.Constraint("Coincident", 10, 2, 11, 1),
    Sketcher.Constraint("Coincident", 11, 2, 12, 1),
    Sketcher.Constraint("Coincident", 12, 2, 13, 1),
    Sketcher.Constraint("Coincident", 13, 2, 14, 1),
    Sketcher.Constraint("Coincident", 14, 2, 15, 1),
    Sketcher.Constraint("Coincident", 15, 2, 16, 1),
    Sketcher.Constraint("Coincident", 16, 2, 17, 1),
    Sketcher.Constraint("Coincident", 17, 2, 18, 1),
    Sketcher.Constraint("Coincident", 18, 2, 19, 1),
    Sketcher.Constraint("Coincident", 19, 2, 20, 1),
    Sketcher.Constraint("Coincident", 20, 2, 21, 1),
    Sketcher.Constraint("Coincident", 21, 2, 0, 1),
    Sketcher.Constraint("Horizontal", 1),
    Sketcher.Constraint("Vertical", 3),
    Sketcher.Constraint("Horizontal", 5),
    Sketcher.Constraint("Horizontal", 7),
    Sketcher.Constraint("Vertical", 9),
    Sketcher.Constraint("Horizontal", 11),
    Sketcher.Constraint("Vertical", 13),
    Sketcher.Constraint("Horizontal", 15),
    Sketcher.Constraint("Vertical", 17),
    Sketcher.Constraint("Horizontal", 19),
    Sketcher.Constraint("Vertical", 21),
    Sketcher.Constraint("Perpendicular", 0, 4),
    Sketcher.Constraint("Perpendicular", 4, 6),
    Sketcher.Constraint("Parallel", 6, 8),
    Sketcher.Constraint("Parallel", 8, 10),
    Sketcher.Constraint("Parallel", 10, 12),
    Sketcher.Constraint("Perpendicular", 12, 16),
    Sketcher.Constraint("Parallel", 16, 18),
    Sketcher.Constraint("Perpendicular", 18, 20),
    Sketcher.Constraint("Horizontal", 3, 2, 6, 2),
    Sketcher.Constraint("DistanceX", 2, 2, 0, 2, Q("20.411998 mm")),
    Sketcher.Constraint("DistanceX", 7, 1, 7, 2, Q("15.580012 mm")),
    Sketcher.Constraint("DistanceY", 17, 1, 17, 2, Q("5.999791 mm")),
    Sketcher.Constraint("DistanceY", 7, 2, 8, 2, Q("3.2554 mm")),
    Sketcher.Constraint("DistanceX", 0, 2, 11, 2, Q("21.537399 mm")),
    Sketcher.Constraint("Distance", 4, Q("4.228971 mm")),
    Sketcher.Constraint("Distance", 8, Q("4.60047 mm")),
    Sketcher.Constraint("Distance", 12, Q("7.07399 mm")),
    Sketcher.Constraint("Distance", 14, Q("6.929811 mm")),
    Sketcher.Constraint("Distance", 16, Q("4.239631 mm")),
    Sketcher.Constraint("Distance", 20, Q("4.243368 mm")),
    Sketcher.Constraint("DistanceX", 1, 2, 1, 1, Q("17.448753 mm")),
    Sketcher.Constraint("DistanceX", 5, 1, 5, 2, Q("13.589488 mm")),
    Sketcher.Constraint("DistanceX", 11, 1, 11, 2, Q("1.937753 mm")),
    Sketcher.Constraint("DistanceX", 15, 2, 15, 1, Q("2.199117 mm")),
    Sketcher.Constraint("DistanceX", 19, 2, 19, 1, Q("7.002466 mm")),
    Sketcher.Constraint("DistanceY", 3, 2, 3, 1, Q("11.629904 mm")),
    Sketcher.Constraint("DistanceY", 9, 1, 9, 2, Q("2.672394 mm")),
    Sketcher.Constraint("DistanceY", 13, 1, 13, 2, Q("38.451947 mm")),
    Sketcher.Constraint("DistanceY", 21, 2, 21, 1, Q("46.793432 mm")),
    Sketcher.Constraint("DistanceX", -1, 1, 2, 2, Q("68.782039 mm")),
    Sketcher.Constraint("DistanceY", 3, 2, -1, 1, Q("68.350169 mm")),
    Sketcher.Constraint("DistanceX", -1, 1, 14, 2, Q("110.933788 mm")),
    Sketcher.Constraint("DistanceY", 18, 2, -1, 1, Q("0.354971 mm")),
])
pad12 = body.newObject("PartDesign::Pad", "Pad011")
pad12.Profile = sketch13
pad12.setExpression("Length", "Params.pad12_length")

# Sketch on XY plane
sketch14 = body.newObject("Sketcher::SketchObject", "Sketch013")
sketch14.AttachmentSupport = (doc.getObject("XY_Plane"), [""])
sketch14.MapMode = "FlatFace"
sketch14.AttachmentOffset = App.Placement(V(0, 0, 27.1), App.Rotation())
sketch14.addGeometry([
    Part.LineSegment(V(114, -15, 0), V(105, -15, 0)),  # 0
    Part.LineSegment(V(105, -15, 0), V(105, -35, 0)),  # 1
    Part.LineSegment(V(105, -35, 0), V(114, -35, 0)),  # 2
    Part.LineSegment(V(114, -35, 0), V(114, -15, 0)),  # 3
    Part.LineSegment(V(114, -58, 0), V(114, -38, 0)),  # 4
    Part.LineSegment(V(114, -38, 0), V(105, -38, 0)),  # 5
    Part.LineSegment(V(105, -38, 0), V(105, -58, 0)),  # 6
    Part.LineSegment(V(105, -58, 0), V(114, -58, 0)),  # 7
], False)
sketch14.addConstraint([
    Sketcher.Constraint("Coincident", 0, 2, 1, 1),
    Sketcher.Constraint("Coincident", 1, 2, 2, 1),
    Sketcher.Constraint("Coincident", 2, 2, 3, 1),
    Sketcher.Constraint("Coincident", 3, 2, 0, 1),
    Sketcher.Constraint("Coincident", 4, 2, 5, 1),
    Sketcher.Constraint("Coincident", 5, 2, 6, 1),
    Sketcher.Constraint("Coincident", 6, 2, 7, 1),
    Sketcher.Constraint("Coincident", 7, 2, 4, 1),
    Sketcher.Constraint("Horizontal", 0),
    Sketcher.Constraint("Vertical", 1),
    Sketcher.Constraint("Horizontal", 2),
    Sketcher.Constraint("Vertical", 3),
    Sketcher.Constraint("Vertical", 4),
    Sketcher.Constraint("Horizontal", 5),
    Sketcher.Constraint("Vertical", 6),
    Sketcher.Constraint("Horizontal", 7),
    Sketcher.Constraint("Vertical", 3, 2, 4, 2),
    Sketcher.Constraint("Vertical", 1, 2, 5, 2),
    Sketcher.Constraint("DistanceX", 0, 2, 0, 1, Q("8.808136 mm")),
    Sketcher.Constraint("DistanceY", 1, 2, 1, 1, Q("20.405426 mm")),
    Sketcher.Constraint("DistanceY", 4, 1, 4, 2, Q("20.392098 mm")),
    Sketcher.Constraint("DistanceY", 1, 2, -1, 1, Q("35.35068 mm")),
    Sketcher.Constraint("DistanceX", -1, 1, 2, 2, Q("114.077531 mm")),
    Sketcher.Constraint("DistanceY", 4, 2, 3, 2, Q("22.864032 mm")),
])
pad13 = body.newObject("PartDesign::Pad", "Pad012")
pad13.Profile = sketch14
pad13.setExpression("Length", "Params.pad13_length")

doc.recompute()
